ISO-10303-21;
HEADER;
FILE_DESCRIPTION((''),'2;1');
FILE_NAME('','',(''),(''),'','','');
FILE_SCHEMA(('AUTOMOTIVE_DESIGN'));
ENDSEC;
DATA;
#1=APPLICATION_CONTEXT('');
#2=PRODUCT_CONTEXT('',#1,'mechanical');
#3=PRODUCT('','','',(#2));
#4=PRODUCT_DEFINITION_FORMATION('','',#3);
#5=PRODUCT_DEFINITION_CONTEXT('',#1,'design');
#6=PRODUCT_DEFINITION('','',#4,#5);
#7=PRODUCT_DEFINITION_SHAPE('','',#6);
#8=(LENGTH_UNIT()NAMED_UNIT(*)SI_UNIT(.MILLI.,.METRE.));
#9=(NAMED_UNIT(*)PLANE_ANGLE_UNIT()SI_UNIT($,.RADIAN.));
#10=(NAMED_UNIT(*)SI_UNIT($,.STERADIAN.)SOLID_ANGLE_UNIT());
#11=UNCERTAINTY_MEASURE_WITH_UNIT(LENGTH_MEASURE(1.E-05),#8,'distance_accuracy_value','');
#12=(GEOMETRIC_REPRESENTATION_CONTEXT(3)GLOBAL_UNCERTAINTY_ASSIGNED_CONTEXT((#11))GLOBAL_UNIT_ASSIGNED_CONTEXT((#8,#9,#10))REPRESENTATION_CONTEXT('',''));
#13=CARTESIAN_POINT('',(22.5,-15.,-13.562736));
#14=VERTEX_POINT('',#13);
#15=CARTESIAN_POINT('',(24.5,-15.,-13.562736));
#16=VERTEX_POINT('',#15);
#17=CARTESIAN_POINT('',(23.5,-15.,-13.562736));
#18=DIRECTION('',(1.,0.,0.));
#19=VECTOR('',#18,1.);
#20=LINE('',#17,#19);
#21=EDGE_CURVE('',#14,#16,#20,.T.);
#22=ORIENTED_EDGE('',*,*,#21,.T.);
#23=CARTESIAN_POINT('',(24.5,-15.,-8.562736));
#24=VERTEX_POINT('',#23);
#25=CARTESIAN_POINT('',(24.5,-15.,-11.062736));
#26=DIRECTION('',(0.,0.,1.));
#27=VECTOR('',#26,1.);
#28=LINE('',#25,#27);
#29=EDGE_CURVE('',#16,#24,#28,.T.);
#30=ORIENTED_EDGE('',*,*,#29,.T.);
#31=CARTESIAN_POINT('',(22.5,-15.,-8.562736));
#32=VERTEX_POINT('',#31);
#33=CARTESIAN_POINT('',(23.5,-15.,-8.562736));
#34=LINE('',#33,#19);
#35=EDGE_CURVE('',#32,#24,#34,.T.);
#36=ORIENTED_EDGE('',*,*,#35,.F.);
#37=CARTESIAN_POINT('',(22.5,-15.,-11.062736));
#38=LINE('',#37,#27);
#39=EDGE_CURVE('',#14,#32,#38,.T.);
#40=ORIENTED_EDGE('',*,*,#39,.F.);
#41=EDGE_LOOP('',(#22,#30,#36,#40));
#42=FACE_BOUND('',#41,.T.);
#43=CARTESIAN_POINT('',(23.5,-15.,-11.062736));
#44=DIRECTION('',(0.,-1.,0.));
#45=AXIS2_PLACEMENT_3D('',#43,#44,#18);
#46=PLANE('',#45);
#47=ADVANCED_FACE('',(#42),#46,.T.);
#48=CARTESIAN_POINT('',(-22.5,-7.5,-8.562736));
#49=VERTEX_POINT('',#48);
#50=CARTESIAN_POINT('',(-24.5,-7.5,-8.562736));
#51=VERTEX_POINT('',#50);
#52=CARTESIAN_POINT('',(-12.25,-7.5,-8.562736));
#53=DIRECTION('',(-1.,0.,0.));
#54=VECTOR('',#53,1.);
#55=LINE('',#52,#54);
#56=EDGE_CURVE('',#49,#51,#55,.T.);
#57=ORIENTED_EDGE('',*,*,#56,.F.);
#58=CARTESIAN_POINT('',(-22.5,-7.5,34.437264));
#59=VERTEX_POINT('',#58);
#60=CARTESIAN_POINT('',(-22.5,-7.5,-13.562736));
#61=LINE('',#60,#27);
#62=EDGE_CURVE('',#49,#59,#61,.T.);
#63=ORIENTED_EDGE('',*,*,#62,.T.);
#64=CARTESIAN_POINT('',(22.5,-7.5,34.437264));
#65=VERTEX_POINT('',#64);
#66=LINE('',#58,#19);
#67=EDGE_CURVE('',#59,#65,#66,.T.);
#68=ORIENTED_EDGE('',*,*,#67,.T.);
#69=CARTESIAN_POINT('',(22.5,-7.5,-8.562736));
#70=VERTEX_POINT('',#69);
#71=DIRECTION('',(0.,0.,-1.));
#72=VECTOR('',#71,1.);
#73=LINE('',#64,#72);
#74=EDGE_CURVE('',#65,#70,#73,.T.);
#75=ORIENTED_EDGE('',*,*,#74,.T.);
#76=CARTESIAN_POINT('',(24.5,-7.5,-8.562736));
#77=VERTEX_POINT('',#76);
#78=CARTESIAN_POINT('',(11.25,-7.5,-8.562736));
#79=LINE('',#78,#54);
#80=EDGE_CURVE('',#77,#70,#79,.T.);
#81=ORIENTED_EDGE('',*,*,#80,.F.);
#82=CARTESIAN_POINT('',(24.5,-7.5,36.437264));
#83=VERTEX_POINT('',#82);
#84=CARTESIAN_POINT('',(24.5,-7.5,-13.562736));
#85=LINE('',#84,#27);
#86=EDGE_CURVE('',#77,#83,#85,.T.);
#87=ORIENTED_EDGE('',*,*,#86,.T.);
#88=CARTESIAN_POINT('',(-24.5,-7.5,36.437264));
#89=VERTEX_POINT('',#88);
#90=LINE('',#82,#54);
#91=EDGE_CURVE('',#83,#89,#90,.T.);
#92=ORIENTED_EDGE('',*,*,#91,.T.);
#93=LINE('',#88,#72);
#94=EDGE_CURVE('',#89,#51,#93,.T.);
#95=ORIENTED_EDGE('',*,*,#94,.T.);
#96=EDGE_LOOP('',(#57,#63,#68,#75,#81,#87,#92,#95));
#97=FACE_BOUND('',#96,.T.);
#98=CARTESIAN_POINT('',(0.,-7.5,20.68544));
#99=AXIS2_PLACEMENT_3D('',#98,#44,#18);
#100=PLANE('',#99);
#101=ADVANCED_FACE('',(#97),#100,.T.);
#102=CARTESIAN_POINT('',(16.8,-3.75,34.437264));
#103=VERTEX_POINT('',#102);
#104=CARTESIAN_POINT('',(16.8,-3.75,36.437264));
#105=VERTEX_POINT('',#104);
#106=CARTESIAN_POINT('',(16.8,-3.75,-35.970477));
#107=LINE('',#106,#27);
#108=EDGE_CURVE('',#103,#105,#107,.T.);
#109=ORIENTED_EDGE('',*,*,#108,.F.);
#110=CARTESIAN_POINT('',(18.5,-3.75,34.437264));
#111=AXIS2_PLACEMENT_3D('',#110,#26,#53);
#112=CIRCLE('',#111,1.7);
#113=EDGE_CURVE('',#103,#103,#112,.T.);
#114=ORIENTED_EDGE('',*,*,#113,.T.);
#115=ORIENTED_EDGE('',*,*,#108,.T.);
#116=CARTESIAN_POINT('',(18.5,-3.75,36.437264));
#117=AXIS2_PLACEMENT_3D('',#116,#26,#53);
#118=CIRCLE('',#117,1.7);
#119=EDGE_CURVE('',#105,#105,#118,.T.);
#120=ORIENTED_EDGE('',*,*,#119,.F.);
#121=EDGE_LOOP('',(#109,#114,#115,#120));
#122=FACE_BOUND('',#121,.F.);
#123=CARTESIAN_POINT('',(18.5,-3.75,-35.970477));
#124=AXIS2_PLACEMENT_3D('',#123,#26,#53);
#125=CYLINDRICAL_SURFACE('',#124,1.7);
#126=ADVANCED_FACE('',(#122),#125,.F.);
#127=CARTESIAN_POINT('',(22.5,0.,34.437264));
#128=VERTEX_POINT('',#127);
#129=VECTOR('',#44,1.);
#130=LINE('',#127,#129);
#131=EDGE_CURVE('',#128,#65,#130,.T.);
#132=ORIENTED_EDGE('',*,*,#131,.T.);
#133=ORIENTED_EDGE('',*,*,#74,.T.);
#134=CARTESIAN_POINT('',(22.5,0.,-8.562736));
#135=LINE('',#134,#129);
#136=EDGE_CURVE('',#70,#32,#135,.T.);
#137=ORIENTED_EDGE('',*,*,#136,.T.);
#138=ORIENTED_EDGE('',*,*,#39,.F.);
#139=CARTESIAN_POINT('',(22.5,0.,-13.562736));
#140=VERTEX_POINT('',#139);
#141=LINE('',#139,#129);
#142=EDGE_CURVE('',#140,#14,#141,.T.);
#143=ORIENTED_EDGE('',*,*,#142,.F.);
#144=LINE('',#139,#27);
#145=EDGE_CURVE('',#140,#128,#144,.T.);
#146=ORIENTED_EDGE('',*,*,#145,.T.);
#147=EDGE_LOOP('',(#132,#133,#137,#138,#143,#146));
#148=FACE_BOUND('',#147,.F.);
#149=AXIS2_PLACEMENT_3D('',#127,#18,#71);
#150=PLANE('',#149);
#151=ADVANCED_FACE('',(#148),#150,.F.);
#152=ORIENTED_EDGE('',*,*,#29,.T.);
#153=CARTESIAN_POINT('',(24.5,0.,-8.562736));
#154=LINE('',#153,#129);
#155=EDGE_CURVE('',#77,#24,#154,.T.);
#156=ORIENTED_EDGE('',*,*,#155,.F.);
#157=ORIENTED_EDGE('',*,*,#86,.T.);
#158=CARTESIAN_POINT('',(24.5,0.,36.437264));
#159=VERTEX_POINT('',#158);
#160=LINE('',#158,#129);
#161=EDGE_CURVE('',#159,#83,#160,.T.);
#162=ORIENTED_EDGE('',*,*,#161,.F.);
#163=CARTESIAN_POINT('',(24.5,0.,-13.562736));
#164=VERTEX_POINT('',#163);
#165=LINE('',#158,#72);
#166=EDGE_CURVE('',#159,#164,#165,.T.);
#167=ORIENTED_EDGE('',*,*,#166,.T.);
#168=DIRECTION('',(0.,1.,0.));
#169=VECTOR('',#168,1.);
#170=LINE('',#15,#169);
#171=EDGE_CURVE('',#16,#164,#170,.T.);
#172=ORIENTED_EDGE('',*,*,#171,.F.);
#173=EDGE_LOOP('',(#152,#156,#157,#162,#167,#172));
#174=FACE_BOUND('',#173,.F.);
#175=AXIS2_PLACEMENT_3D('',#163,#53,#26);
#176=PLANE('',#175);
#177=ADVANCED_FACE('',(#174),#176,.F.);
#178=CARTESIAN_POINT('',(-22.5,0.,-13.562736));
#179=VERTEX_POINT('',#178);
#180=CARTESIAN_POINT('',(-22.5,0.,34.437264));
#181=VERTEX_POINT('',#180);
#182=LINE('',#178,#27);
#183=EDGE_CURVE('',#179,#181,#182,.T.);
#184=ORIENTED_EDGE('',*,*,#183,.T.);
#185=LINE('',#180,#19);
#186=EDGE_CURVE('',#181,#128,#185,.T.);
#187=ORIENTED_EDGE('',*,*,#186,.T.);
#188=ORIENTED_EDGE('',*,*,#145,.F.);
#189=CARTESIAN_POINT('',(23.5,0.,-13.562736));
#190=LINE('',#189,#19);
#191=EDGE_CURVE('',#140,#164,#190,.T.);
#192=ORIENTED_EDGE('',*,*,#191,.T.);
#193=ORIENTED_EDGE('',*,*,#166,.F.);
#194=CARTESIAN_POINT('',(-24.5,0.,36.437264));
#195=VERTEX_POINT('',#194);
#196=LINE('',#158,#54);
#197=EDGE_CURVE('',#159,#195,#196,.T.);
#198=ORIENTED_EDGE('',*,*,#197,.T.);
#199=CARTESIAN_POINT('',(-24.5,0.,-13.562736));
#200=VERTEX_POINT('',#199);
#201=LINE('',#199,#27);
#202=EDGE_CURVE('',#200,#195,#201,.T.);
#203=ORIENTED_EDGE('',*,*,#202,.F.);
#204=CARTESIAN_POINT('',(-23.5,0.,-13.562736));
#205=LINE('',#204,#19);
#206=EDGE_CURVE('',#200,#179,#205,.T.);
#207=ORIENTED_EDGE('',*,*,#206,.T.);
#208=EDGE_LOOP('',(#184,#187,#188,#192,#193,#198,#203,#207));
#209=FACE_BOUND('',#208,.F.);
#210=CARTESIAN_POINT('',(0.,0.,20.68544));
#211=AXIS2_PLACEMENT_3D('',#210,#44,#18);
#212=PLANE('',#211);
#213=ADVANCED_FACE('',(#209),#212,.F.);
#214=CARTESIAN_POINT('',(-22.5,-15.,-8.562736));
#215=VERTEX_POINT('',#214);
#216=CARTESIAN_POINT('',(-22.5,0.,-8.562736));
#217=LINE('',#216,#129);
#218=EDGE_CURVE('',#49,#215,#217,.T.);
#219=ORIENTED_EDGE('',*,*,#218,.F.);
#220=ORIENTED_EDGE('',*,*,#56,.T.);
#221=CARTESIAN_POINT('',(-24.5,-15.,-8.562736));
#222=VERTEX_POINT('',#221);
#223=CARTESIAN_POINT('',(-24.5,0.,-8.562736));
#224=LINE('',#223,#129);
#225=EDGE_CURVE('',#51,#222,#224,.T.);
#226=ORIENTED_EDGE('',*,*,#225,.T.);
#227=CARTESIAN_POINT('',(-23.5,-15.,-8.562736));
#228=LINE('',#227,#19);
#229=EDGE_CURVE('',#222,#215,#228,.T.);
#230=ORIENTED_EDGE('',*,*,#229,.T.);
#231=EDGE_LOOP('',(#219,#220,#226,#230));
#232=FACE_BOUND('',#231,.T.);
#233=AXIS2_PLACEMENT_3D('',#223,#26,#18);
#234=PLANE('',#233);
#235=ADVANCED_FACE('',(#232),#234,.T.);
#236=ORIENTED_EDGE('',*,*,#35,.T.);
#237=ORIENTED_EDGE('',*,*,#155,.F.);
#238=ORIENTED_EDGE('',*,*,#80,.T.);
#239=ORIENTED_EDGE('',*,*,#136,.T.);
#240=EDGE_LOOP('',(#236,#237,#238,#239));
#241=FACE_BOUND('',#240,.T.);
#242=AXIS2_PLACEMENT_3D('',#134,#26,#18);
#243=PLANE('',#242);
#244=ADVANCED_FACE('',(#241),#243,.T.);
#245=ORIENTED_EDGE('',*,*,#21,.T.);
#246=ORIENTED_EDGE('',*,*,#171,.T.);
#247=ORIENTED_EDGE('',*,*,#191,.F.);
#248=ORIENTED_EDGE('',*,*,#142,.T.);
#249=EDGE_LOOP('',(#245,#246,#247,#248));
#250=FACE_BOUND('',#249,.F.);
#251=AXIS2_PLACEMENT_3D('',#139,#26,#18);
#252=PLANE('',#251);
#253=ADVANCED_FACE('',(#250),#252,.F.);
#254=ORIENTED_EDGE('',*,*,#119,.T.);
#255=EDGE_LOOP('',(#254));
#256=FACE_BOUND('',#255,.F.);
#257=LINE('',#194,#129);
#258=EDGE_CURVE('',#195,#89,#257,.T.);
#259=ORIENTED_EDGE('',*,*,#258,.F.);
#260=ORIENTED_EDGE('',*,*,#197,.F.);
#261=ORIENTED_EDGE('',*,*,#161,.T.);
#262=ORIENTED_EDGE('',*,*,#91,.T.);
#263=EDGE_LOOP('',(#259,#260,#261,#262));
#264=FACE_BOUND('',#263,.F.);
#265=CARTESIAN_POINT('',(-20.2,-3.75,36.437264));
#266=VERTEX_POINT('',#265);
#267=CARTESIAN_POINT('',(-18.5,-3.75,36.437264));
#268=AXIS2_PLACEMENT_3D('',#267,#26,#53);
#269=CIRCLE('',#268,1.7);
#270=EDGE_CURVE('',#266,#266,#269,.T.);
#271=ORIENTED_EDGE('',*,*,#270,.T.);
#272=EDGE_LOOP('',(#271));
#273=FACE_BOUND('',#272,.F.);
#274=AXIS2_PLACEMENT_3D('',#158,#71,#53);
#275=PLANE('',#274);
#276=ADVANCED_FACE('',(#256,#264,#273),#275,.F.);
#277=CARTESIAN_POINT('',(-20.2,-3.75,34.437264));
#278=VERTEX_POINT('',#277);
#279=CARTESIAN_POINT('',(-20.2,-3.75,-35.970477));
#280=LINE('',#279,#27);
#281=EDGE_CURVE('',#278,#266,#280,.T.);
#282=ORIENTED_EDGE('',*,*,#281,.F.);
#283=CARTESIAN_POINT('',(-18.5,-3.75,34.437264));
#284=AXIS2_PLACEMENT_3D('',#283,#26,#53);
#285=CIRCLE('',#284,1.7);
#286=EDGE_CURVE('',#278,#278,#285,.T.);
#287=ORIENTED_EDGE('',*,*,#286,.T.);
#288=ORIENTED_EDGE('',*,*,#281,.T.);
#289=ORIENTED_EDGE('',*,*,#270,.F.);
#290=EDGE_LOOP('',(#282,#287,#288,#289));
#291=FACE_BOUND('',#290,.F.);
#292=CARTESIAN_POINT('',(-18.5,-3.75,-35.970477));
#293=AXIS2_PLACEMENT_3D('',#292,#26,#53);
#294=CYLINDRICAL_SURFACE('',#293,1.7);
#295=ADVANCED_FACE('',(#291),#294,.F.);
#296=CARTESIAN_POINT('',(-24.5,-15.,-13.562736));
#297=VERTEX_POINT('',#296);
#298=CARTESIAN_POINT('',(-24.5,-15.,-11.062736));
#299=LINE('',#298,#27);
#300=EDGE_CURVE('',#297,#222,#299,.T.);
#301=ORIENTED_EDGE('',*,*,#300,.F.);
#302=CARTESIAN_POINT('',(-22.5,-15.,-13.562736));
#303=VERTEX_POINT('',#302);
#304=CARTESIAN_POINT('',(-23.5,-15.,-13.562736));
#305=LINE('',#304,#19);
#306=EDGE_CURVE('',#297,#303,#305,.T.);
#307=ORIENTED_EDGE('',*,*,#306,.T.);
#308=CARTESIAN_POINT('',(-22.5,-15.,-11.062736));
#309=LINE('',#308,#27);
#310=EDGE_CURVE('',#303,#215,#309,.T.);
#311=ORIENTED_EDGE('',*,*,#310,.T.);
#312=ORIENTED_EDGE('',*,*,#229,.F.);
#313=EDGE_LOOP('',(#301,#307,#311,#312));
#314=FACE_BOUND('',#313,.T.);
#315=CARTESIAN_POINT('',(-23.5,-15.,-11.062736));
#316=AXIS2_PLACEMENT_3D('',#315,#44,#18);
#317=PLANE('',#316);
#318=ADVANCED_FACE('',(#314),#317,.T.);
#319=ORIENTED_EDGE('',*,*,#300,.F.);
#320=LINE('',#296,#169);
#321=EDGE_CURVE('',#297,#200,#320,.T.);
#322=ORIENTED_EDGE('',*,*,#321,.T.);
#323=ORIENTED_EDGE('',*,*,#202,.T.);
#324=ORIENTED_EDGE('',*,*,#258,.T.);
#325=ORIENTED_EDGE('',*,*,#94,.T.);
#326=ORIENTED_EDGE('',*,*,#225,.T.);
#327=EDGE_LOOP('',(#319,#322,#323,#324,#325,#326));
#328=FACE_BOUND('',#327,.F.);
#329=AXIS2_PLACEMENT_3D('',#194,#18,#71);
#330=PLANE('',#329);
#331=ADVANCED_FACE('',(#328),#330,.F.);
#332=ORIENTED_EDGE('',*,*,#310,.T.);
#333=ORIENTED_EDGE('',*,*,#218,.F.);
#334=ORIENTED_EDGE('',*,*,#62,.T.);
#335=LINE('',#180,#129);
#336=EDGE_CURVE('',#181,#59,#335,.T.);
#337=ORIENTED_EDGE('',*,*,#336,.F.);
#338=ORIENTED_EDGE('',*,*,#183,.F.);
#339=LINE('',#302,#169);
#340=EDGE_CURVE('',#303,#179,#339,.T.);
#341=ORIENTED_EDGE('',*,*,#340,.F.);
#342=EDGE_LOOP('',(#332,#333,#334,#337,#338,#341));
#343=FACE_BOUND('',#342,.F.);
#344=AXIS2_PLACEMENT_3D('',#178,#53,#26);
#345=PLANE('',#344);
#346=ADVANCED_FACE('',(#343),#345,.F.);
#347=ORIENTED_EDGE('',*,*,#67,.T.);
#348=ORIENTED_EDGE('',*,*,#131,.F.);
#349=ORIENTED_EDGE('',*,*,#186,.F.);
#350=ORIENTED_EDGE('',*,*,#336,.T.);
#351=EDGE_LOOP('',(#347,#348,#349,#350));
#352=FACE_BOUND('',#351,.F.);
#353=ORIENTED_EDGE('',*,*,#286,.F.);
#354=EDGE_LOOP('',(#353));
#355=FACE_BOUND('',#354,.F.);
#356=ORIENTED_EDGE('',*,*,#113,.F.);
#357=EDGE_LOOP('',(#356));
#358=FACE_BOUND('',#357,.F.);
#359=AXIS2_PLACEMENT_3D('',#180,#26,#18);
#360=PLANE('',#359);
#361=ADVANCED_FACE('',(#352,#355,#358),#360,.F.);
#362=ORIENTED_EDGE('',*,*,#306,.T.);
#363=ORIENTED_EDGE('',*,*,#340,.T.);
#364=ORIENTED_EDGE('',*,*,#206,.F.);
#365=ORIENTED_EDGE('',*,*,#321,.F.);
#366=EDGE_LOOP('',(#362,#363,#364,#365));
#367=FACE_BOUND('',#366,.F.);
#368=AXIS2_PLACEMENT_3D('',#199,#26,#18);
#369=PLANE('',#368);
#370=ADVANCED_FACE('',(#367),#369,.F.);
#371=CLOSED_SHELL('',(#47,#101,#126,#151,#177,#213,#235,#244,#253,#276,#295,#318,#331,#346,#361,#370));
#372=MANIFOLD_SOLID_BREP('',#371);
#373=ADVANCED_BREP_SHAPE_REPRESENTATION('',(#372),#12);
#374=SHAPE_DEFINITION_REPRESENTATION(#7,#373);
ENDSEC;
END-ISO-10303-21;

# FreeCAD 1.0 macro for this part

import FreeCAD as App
import Part
import Sketcher
from FreeCAD import Vector

doc = App.newDocument("Part")
body = doc.addObject("PartDesign::Body", "Body")

sketch1 = body.newObject("Sketcher::SketchObject", "Sketch")
sketch1.AttachmentSupport = (doc.getObject("XZ_Plane"), [""])
sketch1.MapMode = "FlatFace"
sketch1.addGeometry([
    Part.LineSegment(Vector(-22.5, 34.4, 0), Vector(22.5, 34.4, 0)),
    Part.LineSegment(Vector(22.5, 34.4, 0), Vector(22.5, -13.6, 0)),
    Part.LineSegment(Vector(22.5, -13.6, 0), Vector(24.5, -13.6, 0)),
    Part.LineSegment(Vector(24.5, -13.6, 0), Vector(24.5, 36.4, 0)),
    Part.LineSegment(Vector(24.5, 36.4, 0), Vector(-24.5, 36.4, 0)),
    Part.LineSegment(Vector(-24.5, 36.4, 0), Vector(-24.5, -13.6, 0)),
    Part.LineSegment(Vector(-24.5, -13.6, 0), Vector(-22.5, -13.6, 0)),
    Part.LineSegment(Vector(-22.5, -13.6, 0), Vector(-22.5, 34.4, 0)),
], False)
sketch1.addConstraint([
    Sketcher.Constraint("Coincident", 0, 2, 1, 1),
    Sketcher.Constraint("Coincident", 1, 2, 2, 1),
    Sketcher.Constraint("Coincident", 2, 2, 3, 1),
    Sketcher.Constraint("Coincident", 3, 2, 4, 1),
    Sketcher.Constraint("Coincident", 4, 2, 5, 1),
    Sketcher.Constraint("Coincident", 5, 2, 6, 1),
    Sketcher.Constraint("Coincident", 6, 2, 7, 1),
    Sketcher.Constraint("Coincident", 7, 2, 0, 1),
    Sketcher.Constraint("Horizontal", 0),
    Sketcher.Constraint("Vertical", 1),
    Sketcher.Constraint("Horizontal", 2),
    Sketcher.Constraint("Vertical", 3),
    Sketcher.Constraint("Horizontal", 4),
    Sketcher.Constraint("Vertical", 5),
    Sketcher.Constraint("Horizontal", 6),
    Sketcher.Constraint("Vertical", 7),
    Sketcher.Constraint("Symmetric", 2, 2, 5, 2, -2),
    Sketcher.Constraint("Equal", 2, 6),
    Sketcher.Constraint("DistanceX", 0, 1, 0, 2, 45.0),
    Sketcher.Constraint("DistanceX", 2, 1, 2, 2, 2.0),
    Sketcher.Constraint("DistanceY", 1, 2, 1, 1, 48.0),
    Sketcher.Constraint("DistanceY", 3, 1, 3, 2, 50.0),
    Sketcher.Constraint("DistanceY", -1, 1, 0, 2, 34.437264),
])
pad1 = body.newObject("PartDesign::Pad", "Pad")
pad1.Profile = sketch1
pad1.Length = 7.5

sketch2 = body.newObject("Sketcher::SketchObject", "Sketch001")
sketch2.AttachmentSupport = (doc.getObject("XY_Plane"), [""])
sketch2.MapMode = "FlatFace"
sketch2.AttachmentOffset = App.Placement(Vector(0, 0, 34.437264), App.Rotation())
sketch2.addGeometry(Part.Circle(Vector(-18.5, -3.8, 0), Vector(0, 0, 1), 1.7), False)
sketch2.addConstraint([
    Sketcher.Constraint("Diameter", 0, 3.4),
    Sketcher.Constraint("DistanceX", 0, 3, -1, 1, 18.5),
    Sketcher.Constraint("DistanceY", 0, 3, -1, 1, 3.75),
])
doc.recompute()
hole = body.newObject("PartDesign::Hole", "Hole")
hole.Profile = sketch2
hole.ThreadType = "None"
hole.Diameter = 3.4
hole.DepthType = "ThroughAll"
hole.Reversed = True

sketch3 = body.newObject("Sketcher::SketchObject", "Sketch002")
sketch3.AttachmentSupport = (doc.getObject("XY_Plane"), [""])
sketch3.MapMode = "FlatFace"
sketch3.AttachmentOffset = App.Placement(Vector(0, 0, 34.437264), App.Rotation())
sketch3.addGeometry(Part.Circle(Vector(18.5, -3.8, 0), Vector(0, 0, 1), 1.7), False)
sketch3.addConstraint([
    Sketcher.Constraint("Diameter", 0, 3.4),
    Sketcher.Constraint("DistanceX", -1, 1, 0, 3, 18.5),
    Sketcher.Constraint("DistanceY", 0, 3, -1, 1, 3.75),
])
doc.recompute()
hole2 = body.newObject("PartDesign::Hole", "Hole001")
hole2.Profile = sketch3
hole2.ThreadType = "None"
hole2.Diameter = 3.4
hole2.DepthType = "ThroughAll"
hole2.Reversed = True

sketch4 = body.newObject("Sketcher::SketchObject", "Sketch003")
sketch4.AttachmentSupport = (doc.getObject("XZ_Plane"), [""])
sketch4.MapMode = "FlatFace"
sketch4.addGeometry([
    Part.LineSegment(Vector(-24.5, -8.6, 0), Vector(-24.5, -13.6, 0)),
    Part.LineSegment(Vector(-24.5, -13.6, 0), Vector(-22.5, -13.6, 0)),
    Part.LineSegment(Vector(-22.5, -13.6, 0), Vector(-22.5, -8.6, 0)),
    Part.LineSegment(Vector(-22.5, -8.6, 0), Vector(-24.5, -8.6, 0)),
    Part.LineSegment(Vector(22.5, -8.6, 0), Vector(22.5, -13.6, 0)),
    Part.LineSegment(Vector(22.5, -13.6, 0), Vector(24.5, -13.6, 0)),
    Part.LineSegment(Vector(24.5, -13.6, 0), Vector(24.5, -8.6, 0)),
    Part.LineSegment(Vector(24.5, -8.6, 0), Vector(22.5, -8.6, 0)),
], False)
sketch4.addConstraint([
    Sketcher.Constraint("Coincident", 0, 2, 1, 1),
    Sketcher.Constraint("Coincident", 1, 2, 2, 1),
    Sketcher.Constraint("Coincident", 2, 2, 3, 1),
    Sketcher.Constraint("Coincident", 3, 2, 0, 1),
    Sketcher.Constraint("Coincident", 4, 2, 5, 1),
    Sketcher.Constraint("Coincident", 5, 2, 6, 1),
    Sketcher.Constraint("Coincident", 6, 2, 7, 1),
    Sketcher.Constraint("Coincident", 7, 2, 4, 1),
    Sketcher.Constraint("Vertical", 0),
    Sketcher.Constraint("Horizontal", 1),
    Sketcher.Constraint("Vertical", 2),
    Sketcher.Constraint("Horizontal", 3),
    Sketcher.Constraint("Vertical", 4),
    Sketcher.Constraint("Horizontal", 5),
    Sketcher.Constraint("Vertical", 6),
    Sketcher.Constraint("Horizontal", 7),
    Sketcher.Constraint("Symmetric", 1, 2, 4, 2, -2),
    Sketcher.Constraint("Symmetric", 3, 2, 6, 2, -2),
    Sketcher.Constraint("DistanceX", 1, 1, 1, 2, 2.0),
    Sketcher.Constraint("DistanceY", 0, 2, 0, 1, 5.0),
    Sketcher.Constraint("DistanceX", 1, 2, 4, 2, 45.0),
    Sketcher.Constraint("DistanceY", 0, 2, -1, 1, 13.562736),
])
pad2 = body.newObject("PartDesign::Pad", "Pad001")
pad2.Profile = sketch4
pad2.Length = 15

doc.recompute()
